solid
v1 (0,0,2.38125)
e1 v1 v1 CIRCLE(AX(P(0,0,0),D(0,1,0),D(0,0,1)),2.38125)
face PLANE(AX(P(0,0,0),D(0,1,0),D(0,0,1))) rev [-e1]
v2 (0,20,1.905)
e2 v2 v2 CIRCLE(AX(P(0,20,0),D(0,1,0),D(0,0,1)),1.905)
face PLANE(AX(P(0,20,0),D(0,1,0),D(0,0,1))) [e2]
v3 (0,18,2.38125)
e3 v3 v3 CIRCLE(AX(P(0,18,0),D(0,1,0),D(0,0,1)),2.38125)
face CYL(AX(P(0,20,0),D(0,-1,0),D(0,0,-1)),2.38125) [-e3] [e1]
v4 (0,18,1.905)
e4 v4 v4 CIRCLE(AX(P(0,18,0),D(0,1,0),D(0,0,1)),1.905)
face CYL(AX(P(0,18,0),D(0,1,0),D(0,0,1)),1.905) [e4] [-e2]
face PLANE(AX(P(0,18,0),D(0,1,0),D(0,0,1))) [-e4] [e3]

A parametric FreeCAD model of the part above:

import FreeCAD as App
import Part
import Sketcher
from FreeCAD import Vector

doc = App.newDocument("Part")
body = doc.addObject("PartDesign::Body", "Body")

sketch1 = body.newObject("Sketcher::SketchObject", "Sketch")
sketch1.AttachmentSupport = (doc.getObject("XZ_Plane"), [""])
sketch1.MapMode = "FlatFace"
sketch1.addGeometry(Part.Circle(Vector(0, 0, 0), Vector(0, 0, 1), 2.38125), False)
sketch1.addConstraint(Sketcher.Constraint("Coincident", 0, 3, -1, 1))
sketch1.addConstraint(Sketcher.Constraint("Diameter", 0, 4.7625))
pad1 = body.newObject("PartDesign::Pad", "Pad")
pad1.Profile = sketch1
pad1.Length = 20
pad1.Reversed = True

sketch2 = body.newObject("Sketcher::SketchObject", "Sketch001")
sketch2.AttachmentSupport = (doc.getObject("XZ_Plane"), [""])
sketch2.MapMode = "FlatFace"
sketch2.AttachmentOffset = App.Placement(Vector(0, 0, -20), App.Rotation())
sketch2.addGeometry(Part.Circle(Vector(0, 0, 0), Vector(0, 0, 1), 2.38125), False)
sketch2.addGeometry(Part.Circle(Vector(0, 0, 0), Vector(0, 0, 1), 1.905), False)
sketch2.addConstraint(Sketcher.Constraint("Coincident", 0, 3, -1, 1))
sketch2.addConstraint(Sketcher.Constraint("Coincident", 1, 3, -1, 1))
sketch2.addConstraint(Sketcher.Constraint("Diameter", 1, 3.81))
sketch2.addConstraint(Sketcher.Constraint("Diameter", 0, 4.7625))
pocket1 = body.newObject("PartDesign::Pocket", "Pocket")
pocket1.Profile = sketch2
pocket1.Length = 2
pocket1.Reversed = True

doc.recompute()
